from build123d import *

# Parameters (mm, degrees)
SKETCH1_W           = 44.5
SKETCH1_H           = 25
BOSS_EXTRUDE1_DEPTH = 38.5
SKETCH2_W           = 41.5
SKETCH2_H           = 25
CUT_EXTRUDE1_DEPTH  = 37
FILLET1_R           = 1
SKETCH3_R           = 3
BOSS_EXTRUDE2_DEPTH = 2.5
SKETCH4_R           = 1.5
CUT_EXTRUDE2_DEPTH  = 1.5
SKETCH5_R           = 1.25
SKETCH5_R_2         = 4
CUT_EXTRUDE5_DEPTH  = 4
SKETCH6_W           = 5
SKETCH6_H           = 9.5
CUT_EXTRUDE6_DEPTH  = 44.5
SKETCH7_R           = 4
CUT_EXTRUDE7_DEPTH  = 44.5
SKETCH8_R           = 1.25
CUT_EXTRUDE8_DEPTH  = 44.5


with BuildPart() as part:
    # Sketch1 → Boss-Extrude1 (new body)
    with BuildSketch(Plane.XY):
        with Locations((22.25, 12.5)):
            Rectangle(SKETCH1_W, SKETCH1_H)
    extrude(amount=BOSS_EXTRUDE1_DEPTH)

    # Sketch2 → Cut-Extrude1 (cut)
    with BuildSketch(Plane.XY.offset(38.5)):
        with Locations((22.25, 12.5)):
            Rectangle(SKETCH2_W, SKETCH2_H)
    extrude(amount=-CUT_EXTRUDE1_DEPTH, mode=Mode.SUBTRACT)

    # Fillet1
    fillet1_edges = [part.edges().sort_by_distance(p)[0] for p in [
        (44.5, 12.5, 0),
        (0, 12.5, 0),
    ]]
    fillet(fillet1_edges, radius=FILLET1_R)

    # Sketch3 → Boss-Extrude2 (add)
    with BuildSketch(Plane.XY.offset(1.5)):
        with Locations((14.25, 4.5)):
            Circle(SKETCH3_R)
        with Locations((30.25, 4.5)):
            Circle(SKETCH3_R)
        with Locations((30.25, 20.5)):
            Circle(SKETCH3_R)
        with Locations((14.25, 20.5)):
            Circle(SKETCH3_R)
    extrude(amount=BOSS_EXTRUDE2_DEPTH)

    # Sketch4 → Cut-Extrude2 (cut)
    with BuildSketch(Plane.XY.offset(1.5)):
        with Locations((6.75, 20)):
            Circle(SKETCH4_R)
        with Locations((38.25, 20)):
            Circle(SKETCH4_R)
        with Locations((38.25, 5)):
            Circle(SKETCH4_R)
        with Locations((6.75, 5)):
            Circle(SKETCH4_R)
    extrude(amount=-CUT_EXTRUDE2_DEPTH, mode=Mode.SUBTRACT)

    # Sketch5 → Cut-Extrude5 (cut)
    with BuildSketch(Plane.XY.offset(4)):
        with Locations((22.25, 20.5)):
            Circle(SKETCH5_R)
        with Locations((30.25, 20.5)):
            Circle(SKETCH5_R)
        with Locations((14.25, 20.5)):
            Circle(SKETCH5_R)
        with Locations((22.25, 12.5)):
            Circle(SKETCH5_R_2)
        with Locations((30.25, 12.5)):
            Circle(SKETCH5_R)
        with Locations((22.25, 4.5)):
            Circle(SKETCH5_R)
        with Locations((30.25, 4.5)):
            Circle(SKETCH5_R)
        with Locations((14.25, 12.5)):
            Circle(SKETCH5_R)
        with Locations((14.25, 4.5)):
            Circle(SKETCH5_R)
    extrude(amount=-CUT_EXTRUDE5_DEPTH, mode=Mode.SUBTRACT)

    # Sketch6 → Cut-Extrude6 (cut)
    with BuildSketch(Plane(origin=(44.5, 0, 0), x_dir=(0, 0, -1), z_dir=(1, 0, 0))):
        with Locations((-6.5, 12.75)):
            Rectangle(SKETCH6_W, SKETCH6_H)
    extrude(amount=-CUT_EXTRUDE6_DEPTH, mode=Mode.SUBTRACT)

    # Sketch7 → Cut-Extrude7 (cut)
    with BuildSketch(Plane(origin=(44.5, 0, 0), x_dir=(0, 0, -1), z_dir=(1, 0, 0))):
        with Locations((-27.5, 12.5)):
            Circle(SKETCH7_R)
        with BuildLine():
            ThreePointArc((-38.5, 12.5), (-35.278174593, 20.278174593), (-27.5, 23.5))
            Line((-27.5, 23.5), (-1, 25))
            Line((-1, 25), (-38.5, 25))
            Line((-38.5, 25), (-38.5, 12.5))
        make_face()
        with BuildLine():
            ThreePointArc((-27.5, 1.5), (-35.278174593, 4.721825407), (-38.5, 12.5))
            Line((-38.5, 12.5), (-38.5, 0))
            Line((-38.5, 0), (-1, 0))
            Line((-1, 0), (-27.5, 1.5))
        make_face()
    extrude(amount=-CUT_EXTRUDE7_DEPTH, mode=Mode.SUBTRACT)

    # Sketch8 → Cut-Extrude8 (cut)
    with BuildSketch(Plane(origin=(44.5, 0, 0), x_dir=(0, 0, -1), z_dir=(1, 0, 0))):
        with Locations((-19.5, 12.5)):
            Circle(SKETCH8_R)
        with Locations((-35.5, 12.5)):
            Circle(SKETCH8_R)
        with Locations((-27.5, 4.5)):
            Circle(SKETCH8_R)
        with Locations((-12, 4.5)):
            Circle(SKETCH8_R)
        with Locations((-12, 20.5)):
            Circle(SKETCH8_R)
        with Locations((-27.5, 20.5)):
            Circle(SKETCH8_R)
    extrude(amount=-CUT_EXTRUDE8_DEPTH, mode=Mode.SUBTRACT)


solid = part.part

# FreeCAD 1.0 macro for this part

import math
import FreeCAD as App
import Part
import Sketcher
from FreeCAD import Vector


def edges_at(feature, points):
    """Names of the edges that pass closest to the given points."""
    edges = feature.Shape.Edges
    near = lambda p: min(range(len(edges)), key=lambda i: edges[i].distToShape(Part.Vertex(*p))[0])
    return sorted({f"Edge{near(p) + 1}" for p in points})


def add_polygon(sketch, points):
    """Adds a closed chain of lines whose ends are joined by coincident constraints."""
    first, n = sketch.GeometryCount, len(points)
    for a, b in zip(points, points[1:] + points[:1]):
        sketch.addGeometry(Part.LineSegment(App.Vector(*a, 0), App.Vector(*b, 0)), False)
    for i in range(n):
        sketch.addConstraint(Sketcher.Constraint("Coincident", first + i, 2, first + (i + 1) % n, 1))

doc = App.newDocument("Part")
body = doc.addObject("PartDesign::Body", "Body")

sketch1 = body.newObject("Sketcher::SketchObject", "Sketch")
sketch1.AttachmentSupport = (doc.getObject("XY_Plane"), [""])
sketch1.MapMode = "FlatFace"
add_polygon(sketch1, [(0, 25), (0, 0), (44, 0), (44, 25)])
sketch1.addConstraint([
    Sketcher.Constraint("Vertical", 0),
    Sketcher.Constraint("Horizontal", 1),
    Sketcher.Constraint("Vertical", 2),
    Sketcher.Constraint("Horizontal", 3),
    Sketcher.Constraint("Coincident", 0, 2, -1, 1),
    Sketcher.Constraint("DistanceY", 0, 2, 0, 1, 25.0),
    Sketcher.Constraint("DistanceX", 1, 1, 1, 2, 44.5),
])
pad1 = body.newObject("PartDesign::Pad", "Pad")
pad1.Profile = sketch1
pad1.Length = 38.5

sketch2 = body.newObject("Sketcher::SketchObject", "Sketch001")
sketch2.AttachmentSupport = (doc.getObject("XY_Plane"), [""])
sketch2.MapMode = "FlatFace"
sketch2.AttachmentOffset = App.Placement(Vector(0, 0, 38.5), App.Rotation())
add_polygon(sketch2, [(2, 25), (2, 0), (43, 0), (43, 25)])
sketch2.addConstraint([
    Sketcher.Constraint("Vertical", 0),
    Sketcher.Constraint("Horizontal", 1),
    Sketcher.Constraint("Vertical", 2),
    Sketcher.Constraint("Horizontal", 3),
    Sketcher.Constraint("PointOnObject", 0, 2, -1),
    Sketcher.Constraint("DistanceY", 0, 2, 0, 1, 25.0),
    Sketcher.Constraint("DistanceX", 1, 1, 1, 2, 41.5),
    Sketcher.Constraint("DistanceX", -1, 1, 1, 2, 43.0),
])
pocket1 = body.newObject("PartDesign::Pocket", "Pocket")
pocket1.Profile = sketch2
pocket1.Length = 37
doc.recompute()

fillet = body.newObject("PartDesign::Fillet", "Fillet")
fillet.Base = (pocket1, edges_at(pocket1, [(44.5, 12.5, 0), (0, 12.5, 0)]))
fillet.Radius = 1

sketch3 = body.newObject("Sketcher::SketchObject", "Sketch002")
sketch3.AttachmentSupport = (doc.getObject("XY_Plane"), [""])
sketch3.MapMode = "FlatFace"
sketch3.AttachmentOffset = App.Placement(Vector(0, 0, 1.5), App.Rotation())
sketch3.addGeometry([
    Part.Circle(Vector(14.2, 4.5, 0), Vector(0, 0, 1), 3),
    Part.Circle(Vector(30.2, 4.5, 0), Vector(0, 0, 1), 3),
    Part.Circle(Vector(30.2, 20.5, 0), Vector(0, 0, 1), 3),
    Part.Circle(Vector(14.2, 20.5, 0), Vector(0, 0, 1), 3),
], False)
sketch3.addConstraint([
    Sketcher.Constraint("Equal", 0, 1),
    Sketcher.Constraint("Equal", 1, 2),
    Sketcher.Constraint("Equal", 2, 3),
    Sketcher.Constraint("Horizontal", 0, 3, 1, 3),
    Sketcher.Constraint("Horizontal", 2, 3, 3, 3),
    Sketcher.Constraint("Vertical", 1, 3, 2, 3),
    Sketcher.Constraint("Vertical", 0, 3, 3, 3),
    Sketcher.Constraint("Diameter", 0, 6.0),
    Sketcher.Constraint("DistanceX", 0, 3, 1, 3, 16.0),
    Sketcher.Constraint("DistanceY", 1, 3, 2, 3, 16.0),
    Sketcher.Constraint("DistanceY", -1, 1, 0, 3, 4.5),
    Sketcher.Constraint("DistanceX", -1, 1, 0, 3, 14.25),
])
pad2 = body.newObject("PartDesign::Pad", "Pad001")
pad2.Profile = sketch3
pad2.Length = 2.5

sketch4 = body.newObject("Sketcher::SketchObject", "Sketch003")
sketch4.AttachmentSupport = (doc.getObject("XY_Plane"), [""])
sketch4.MapMode = "FlatFace"
sketch4.AttachmentOffset = App.Placement(Vector(0, 0, 1.5), App.Rotation())
sketch4.addGeometry([
    Part.Circle(Vector(6.8, 20, 0), Vector(0, 0, 1), 1.5),
    Part.Circle(Vector(38.2, 20, 0), Vector(0, 0, 1), 1.5),
    Part.Circle(Vector(38.2, 5, 0), Vector(0, 0, 1), 1.5),
    Part.Circle(Vector(6.8, 5, 0), Vector(0, 0, 1), 1.5),
], False)
sketch4.addConstraint([
    Sketcher.Constraint("Equal", 0, 1),
    Sketcher.Constraint("Equal", 1, 2),
    Sketcher.Constraint("Equal", 2, 3),
    Sketcher.Constraint("Horizontal", 0, 3, 1, 3),
    Sketcher.Constraint("Horizontal", 2, 3, 3, 3),
    Sketcher.Constraint("Vertical", 1, 3, 2, 3),
    Sketcher.Constraint("Vertical", 0, 3, 3, 3),
    Sketcher.Constraint("Diameter", 0, 3.0),
    Sketcher.Constraint("DistanceY", -1, 1, 0, 3, 20.0),
    Sketcher.Constraint("DistanceY", -1, 1, 2, 3, 5.0),
    Sketcher.Constraint("DistanceX", 0, 3, 1, 3, 31.5),
    Sketcher.Constraint("DistanceX", -1, 1, 0, 3, 6.75),
])
pocket2 = body.newObject("PartDesign::Pocket", "Pocket001")
pocket2.Profile = sketch4
pocket2.Length = 1.5

sketch5 = body.newObject("Sketcher::SketchObject", "Sketch004")
sketch5.AttachmentSupport = (doc.getObject("XY_Plane"), [""])
sketch5.MapMode = "FlatFace"
sketch5.AttachmentOffset = App.Placement(Vector(0, 0, 4), App.Rotation())
sketch5.addGeometry([
    Part.Circle(Vector(22.2, 20.5, 0), Vector(0, 0, 1), 1.2),
    Part.Circle(Vector(30.2, 20.5, 0), Vector(0, 0, 1), 1.2),
    Part.Circle(Vector(14.2, 20.5, 0), Vector(0, 0, 1), 1.2),
    Part.Circle(Vector(22.2, 12.5, 0), Vector(0, 0, 1), 4),
    Part.Circle(Vector(30.2, 12.5, 0), Vector(0, 0, 1), 1.2),
    Part.Circle(Vector(22.2, 4.5, 0), Vector(0, 0, 1), 1.2),
    Part.Circle(Vector(30.2, 4.5, 0), Vector(0, 0, 1), 1.2),
    Part.Circle(Vector(14.2, 12.5, 0), Vector(0, 0, 1), 1.2),
    Part.Circle(Vector(14.2, 4.5, 0), Vector(0, 0, 1), 1.2),
], False)
sketch5.addConstraint([
    Sketcher.Constraint("Equal", 0, 1),
    Sketcher.Constraint("Equal", 1, 2),
    Sketcher.Constraint("Equal", 2, 4),
    Sketcher.Constraint("Equal", 4, 5),
    Sketcher.Constraint("Equal", 5, 6),
    Sketcher.Constraint("Equal", 6, 7),
    Sketcher.Constraint("Equal", 7, 8),
    Sketcher.Constraint("Horizontal", 0, 3, 1, 3),
    Sketcher.Constraint("Horizontal", 1, 3, 2, 3),
    Sketcher.Constraint("Horizontal", 3, 3, 4, 3),
    Sketcher.Constraint("Horizontal", 5, 3, 6, 3),
    Sketcher.Constraint("Horizontal", 4, 3, 7, 3),
    Sketcher.Constraint("Horizontal", 6, 3, 8, 3),
    Sketcher.Constraint("Vertical", 0, 3, 3, 3),
    Sketcher.Constraint("Vertical", 1, 3, 4, 3),
    Sketcher.Constraint("Vertical", 3, 3, 5, 3),
    Sketcher.Constraint("Vertical", 4, 3, 6, 3),
    Sketcher.Constraint("Vertical", 2, 3, 7, 3),
    Sketcher.Constraint("Vertical", 7, 3, 8, 3),
    Sketcher.Constraint("Diameter", 3, 8.0),
    Sketcher.Constraint("Diameter", 0, 2.5),
    Sketcher.Constraint("DistanceX", 0, 3, 1, 3, 8.0),
    Sketcher.Constraint("DistanceX", 2, 3, 0, 3, 8.0),
    Sketcher.Constraint("DistanceY", 3, 3, 0, 3, 8.0),
    Sketcher.Constraint("DistanceY", 5, 3, 3, 3, 8.0),
    Sketcher.Constraint("DistanceY", -1, 1, 0, 3, 20.5),
    Sketcher.Constraint("DistanceX", -1, 1, 0, 3, 22.25),
])
pocket3 = body.newObject("PartDesign::Pocket", "Pocket002")
pocket3.Profile = sketch5
pocket3.Length = 4

sketch6 = body.newObject("Sketcher::SketchObject", "Sketch005")
sketch6.AttachmentSupport = (doc.getObject("YZ_Plane"), [""])
sketch6.MapMode = "FlatFace"
sketch6.AttachmentOffset = App.Placement(Vector(0, 0, 44.5), App.Rotation())
add_polygon(sketch6, [(18, 9), (8, 9), (8, 4), (18, 4)])
sketch6.addConstraint([
    Sketcher.Constraint("Horizontal", 0),
    Sketcher.Constraint("Vertical", 1),
    Sketcher.Constraint("Horizontal", 2),
    Sketcher.Constraint("Vertical", 3),
    Sketcher.Constraint("DistanceY", 1, 2, 1, 1, 5.0),
    Sketcher.Constraint("DistanceX", 0, 2, 0, 1, 9.5),
    Sketcher.Constraint("DistanceX", -1, 1, 0, 2, 8.0),
    Sketcher.Constraint("DistanceY", -1, 1, 0, 2, 9.0),
])
pocket4 = body.newObject("PartDesign::Pocket", "Pocket003")
pocket4.Profile = sketch6
pocket4.Length = 44.5

sketch7 = body.newObject("Sketcher::SketchObject", "Sketch006")
sketch7.AttachmentSupport = (doc.getObject("YZ_Plane"), [""])
sketch7.MapMode = "FlatFace"
sketch7.AttachmentOffset = App.Placement(Vector(0, 0, 44.5), App.Rotation())
sketch7.addGeometry([
    Part.Circle(Vector(12.5, 27.5, 0), Vector(0, 0, 1), 4),
    Part.ArcOfCircle(Part.Circle(Vector(12.5, 27.5, 0), Vector(0, 0, 1), 11), math.radians(0), math.radians(90)),
    Part.LineSegment(Vector(23.5, 27.5, 0), Vector(25, 1, 0)),
    Part.LineSegment(Vector(25, 1, 0), Vector(25, 38.5, 0)),
    Part.LineSegment(Vector(25, 38.5, 0), Vector(12.5, 38.5, 0)),
    Part.ArcOfCircle(Part.Circle(Vector(12.5, 27.5, 0), Vector(0, 0, 1), 11), math.radians(90), math.radians(180)),
    Part.LineSegment(Vector(12.5, 38.5, 0), Vector(0, 38.5, 0)),
    Part.LineSegment(Vector(0, 38.5, 0), Vector(0, 1, 0)),
    Part.LineSegment(Vector(0, 1, 0), Vector(1.5, 27.5, 0)),
], False)
sketch7.addConstraint([
    Sketcher.Constraint("Coincident", 1, 1, 2, 1),
    Sketcher.Constraint("Coincident", 2, 2, 3, 1),
    Sketcher.Constraint("Coincident", 3, 2, 4, 1),
    Sketcher.Constraint("Tangent", 4, 2, 1, 2),
    Sketcher.Constraint("Tangent", 5, 1, 6, 1),
    Sketcher.Constraint("Coincident", 6, 2, 7, 1),
    Sketcher.Constraint("Coincident", 7, 2, 8, 1),
    Sketcher.Constraint("Coincident", 8, 2, 5, 2),
    Sketcher.Constraint("Vertical", 3),
    Sketcher.Constraint("Horizontal", 4),
    Sketcher.Constraint("Horizontal", 6),
    Sketcher.Constraint("Vertical", 7),
    Sketcher.Constraint("Coincident", 1, 3, 0, 3),
    Sketcher.Constraint("Coincident", 5, 3, 0, 3),
    Sketcher.Constraint("Equal", 1, 5),
    Sketcher.Constraint("PointOnObject", 6, 2, -2),
    Sketcher.Constraint("Horizontal", 5, 3, 1, 1),
    Sketcher.Constraint("Horizontal", 2, 2, 7, 2),
    Sketcher.Constraint("Horizontal", 1, 1, 8, 2),
    Sketcher.Constraint("Equal", 4, 6),
    Sketcher.Constraint("Diameter", 0, 8.0),
    Sketcher.Constraint("Radius", 1, 11.0),
    Sketcher.Constraint("DistanceX", 4, 2, 4, 1, 12.5),
    Sketcher.Constraint("DistanceY", 3, 1, 3, 2, 37.5),
    Sketcher.Constraint("DistanceY", -1, 1, 2, 2, 1.0),
])
pocket5 = body.newObject("PartDesign::Pocket", "Pocket004")
pocket5.Profile = sketch7
pocket5.Length = 44.5

sketch8 = body.newObject("Sketcher::SketchObject", "Sketch007")
sketch8.AttachmentSupport = (doc.getObject("YZ_Plane"), [""])
sketch8.MapMode = "FlatFace"
sketch8.AttachmentOffset = App.Placement(Vector(0, 0, 44.5), App.Rotation())
sketch8.addGeometry([
    Part.Circle(Vector(12.5, 19.5, 0), Vector(0, 0, 1), 1.2),
    Part.Circle(Vector(12.5, 35.5, 0), Vector(0, 0, 1), 1.2),
    Part.Circle(Vector(4.5, 27.5, 0), Vector(0, 0, 1), 1.2),
    Part.Circle(Vector(4.5, 12, 0), Vector(0, 0, 1), 1.2),
    Part.Circle(Vector(20.5, 12, 0), Vector(0, 0, 1), 1.2),
    Part.Circle(Vector(20.5, 27.5, 0), Vector(0, 0, 1), 1.2),
], False)
sketch8.addConstraint([
    Sketcher.Constraint("Equal", 0, 1),
    Sketcher.Constraint("Equal", 1, 2),
    Sketcher.Constraint("Equal", 2, 3),
    Sketcher.Constraint("Equal", 3, 4),
    Sketcher.Constraint("Equal", 4, 5),
    Sketcher.Constraint("Horizontal", 3, 3, 4, 3),
    Sketcher.Constraint("Horizontal", 2, 3, 5, 3),
    Sketcher.Constraint("Vertical", 0, 3, 1, 3),
    Sketcher.Constraint("Vertical", 2, 3, 3, 3),
    Sketcher.Constraint("Vertical", 4, 3, 5, 3),
    Sketcher.Constraint("Diameter", 0, 2.5),
    Sketcher.Constraint("DistanceY", -1, 1, 3, 3, 12.0),
    Sketcher.Constraint("DistanceY", 0, 3, 1, 3, 16.0),
    Sketcher.Constraint("DistanceX", 2, 3, 0, 3, 8.0),
    Sketcher.Constraint("DistanceY", 0, 3, 2, 3, 8.0),
    Sketcher.Constraint("DistanceX", 0, 3, 4, 3, 8.0),
    Sketcher.Constraint("DistanceX", -1, 1, 0, 3, 12.5),
    Sketcher.Constraint("DistanceY", -1, 1, 0, 3, 19.5),
])
pocket6 = body.newObject("PartDesign::Pocket", "Pocket005")
pocket6.Profile = sketch8
pocket6.Length = 44.5

doc.recompute()
